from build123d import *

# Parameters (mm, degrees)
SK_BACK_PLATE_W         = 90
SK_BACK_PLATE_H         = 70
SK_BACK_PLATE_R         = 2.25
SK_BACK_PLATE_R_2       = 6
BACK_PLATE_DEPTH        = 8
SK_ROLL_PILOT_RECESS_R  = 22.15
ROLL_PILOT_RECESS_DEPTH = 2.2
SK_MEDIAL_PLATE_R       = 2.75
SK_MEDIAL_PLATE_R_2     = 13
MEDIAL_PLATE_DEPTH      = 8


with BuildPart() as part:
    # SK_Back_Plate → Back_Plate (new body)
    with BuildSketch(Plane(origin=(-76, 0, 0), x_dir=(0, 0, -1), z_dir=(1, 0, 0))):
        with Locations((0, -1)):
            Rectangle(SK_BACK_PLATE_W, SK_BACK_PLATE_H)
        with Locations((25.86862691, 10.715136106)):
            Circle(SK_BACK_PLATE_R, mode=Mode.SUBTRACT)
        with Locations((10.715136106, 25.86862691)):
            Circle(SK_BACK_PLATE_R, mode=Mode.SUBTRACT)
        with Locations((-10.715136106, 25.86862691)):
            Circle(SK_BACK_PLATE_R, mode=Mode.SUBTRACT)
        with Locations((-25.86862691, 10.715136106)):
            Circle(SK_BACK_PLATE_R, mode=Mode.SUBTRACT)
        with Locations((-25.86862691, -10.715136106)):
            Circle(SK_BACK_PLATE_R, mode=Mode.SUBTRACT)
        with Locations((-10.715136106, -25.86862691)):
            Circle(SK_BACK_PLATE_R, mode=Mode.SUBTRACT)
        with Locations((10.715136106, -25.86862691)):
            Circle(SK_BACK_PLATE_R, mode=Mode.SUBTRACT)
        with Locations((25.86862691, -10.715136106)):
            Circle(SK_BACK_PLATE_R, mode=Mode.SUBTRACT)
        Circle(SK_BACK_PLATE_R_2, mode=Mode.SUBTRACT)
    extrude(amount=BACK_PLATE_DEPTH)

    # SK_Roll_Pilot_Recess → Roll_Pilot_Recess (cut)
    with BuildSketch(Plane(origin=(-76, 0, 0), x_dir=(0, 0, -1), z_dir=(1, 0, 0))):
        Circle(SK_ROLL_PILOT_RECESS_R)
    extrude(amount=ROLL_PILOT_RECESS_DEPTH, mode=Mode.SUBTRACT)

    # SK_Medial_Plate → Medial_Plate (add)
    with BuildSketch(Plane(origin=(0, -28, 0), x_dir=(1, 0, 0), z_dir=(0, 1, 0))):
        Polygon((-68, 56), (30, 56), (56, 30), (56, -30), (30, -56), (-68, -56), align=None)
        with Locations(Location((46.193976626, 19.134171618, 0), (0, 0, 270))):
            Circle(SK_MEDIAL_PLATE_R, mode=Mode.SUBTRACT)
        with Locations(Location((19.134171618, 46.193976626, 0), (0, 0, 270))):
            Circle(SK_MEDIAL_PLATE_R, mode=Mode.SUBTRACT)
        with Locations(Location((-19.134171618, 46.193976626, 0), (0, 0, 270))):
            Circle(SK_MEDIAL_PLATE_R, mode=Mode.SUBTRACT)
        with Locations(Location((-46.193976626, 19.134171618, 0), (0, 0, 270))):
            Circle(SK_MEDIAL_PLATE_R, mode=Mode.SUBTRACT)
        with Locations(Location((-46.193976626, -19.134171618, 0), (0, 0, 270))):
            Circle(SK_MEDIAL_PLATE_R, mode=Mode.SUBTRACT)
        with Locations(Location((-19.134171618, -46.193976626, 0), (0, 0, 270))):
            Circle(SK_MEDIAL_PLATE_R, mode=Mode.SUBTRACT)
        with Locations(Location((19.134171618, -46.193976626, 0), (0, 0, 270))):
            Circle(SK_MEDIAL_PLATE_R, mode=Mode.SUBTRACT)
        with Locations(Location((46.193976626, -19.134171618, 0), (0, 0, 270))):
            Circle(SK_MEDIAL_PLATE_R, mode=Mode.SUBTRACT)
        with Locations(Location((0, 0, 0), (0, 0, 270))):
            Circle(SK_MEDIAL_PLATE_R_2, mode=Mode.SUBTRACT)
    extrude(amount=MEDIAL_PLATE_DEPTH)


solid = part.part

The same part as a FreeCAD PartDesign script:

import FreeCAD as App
import Part
import Sketcher
Q = App.Units.Quantity


def add_polygon(sketch, points):
    """Adds a closed chain of lines whose ends are joined by coincident constraints."""
    first, n = sketch.GeometryCount, len(points)
    for a, b in zip(points, points[1:] + points[:1]):
        sketch.addGeometry(Part.LineSegment(App.Vector(*a, 0), App.Vector(*b, 0)), False)
    for i in range(n):
        sketch.addConstraint(Sketcher.Constraint("Coincident", first + i, 2, first + (i + 1) % n, 1))

doc = App.newDocument("Part")
params = doc.addObject("Spreadsheet::Sheet", "Params")
for row, (alias, value) in enumerate([
    ("sketch1_diameter", "12 mm"),
    ("sketch1_diameter2", "4.5 mm"),
    ("sketch1_width", "70 mm"),
    ("sketch1_height", "90 mm"),
    ("pad1_length", "8 mm"),
    ("sketch2_diameter", "44.3 mm"),
    ("pocket1_length", "2.2 mm"),
    ("sketch3_diameter", "26 mm"),
    ("sketch3_diameter2", "5.5 mm"),
    ("sketch3_width", "98 mm"),
    ("sketch3_height", "112 mm"),
    ("sketch3_height2", "60 mm"),
    ("pad2_length", "8 mm"),
], start=1):
    params.set(f"A{row}", alias)
    params.set(f"B{row}", "=" + value)
    params.setAlias(f"B{row}", alias)

body = doc.addObject("PartDesign::Body", "Body")

# Sketch on YZ plane
sketch1 = body.newObject("Sketcher::SketchObject", "Sketch")
sketch1.AttachmentSupport = (doc.getObject("YZ_Plane"), [""])
sketch1.MapMode = "FlatFace"
sketch1.AttachmentOffset = App.Placement(App.Vector(0, 0, -76), App.Rotation())
add_polygon(sketch1, [(34, 45), (-36, 45), (-36, -45), (34, -45)])  # lines 0-3
sketch1.addGeometry(Part.Circle(App.Vector(-25.868627, 10.715136, 0), App.Vector(0, 0, 1), 2.25), False)  # 4
sketch1.addGeometry(Part.Circle(App.Vector(-10.715136, 25.868627, 0), App.Vector(0, 0, 1), 2.25), False)  # 5
sketch1.addGeometry(Part.Circle(App.Vector(-25.868627, -10.715136, 0), App.Vector(0, 0, 1), 2.25), False)  # 6
sketch1.addGeometry(Part.Circle(App.Vector(-10.715136, -25.868627, 0), App.Vector(0, 0, 1), 2.25), False)  # 7
sketch1.addGeometry(Part.Circle(App.Vector(10.715136, 25.868627, 0), App.Vector(0, 0, 1), 2.25), False)  # 8
sketch1.addGeometry(Part.Circle(App.Vector(25.868627, 10.715136, 0), App.Vector(0, 0, 1), 2.25), False)  # 9
sketch1.addGeometry(Part.Circle(App.Vector(0, 0, 0), App.Vector(0, 0, 1), 6), False)  # 10
sketch1.addGeometry(Part.Circle(App.Vector(10.715136, -25.868627, 0), App.Vector(0, 0, 1), 2.25), False)  # 11
sketch1.addGeometry(Part.Circle(App.Vector(25.868627, -10.715136, 0), App.Vector(0, 0, 1), 2.25), False)  # 12
sketch1.addConstraint(Sketcher.Constraint("Horizontal", 0))
sketch1.addConstraint(Sketcher.Constraint("Vertical", 1))
sketch1.addConstraint(Sketcher.Constraint("Horizontal", 2))
sketch1.addConstraint(Sketcher.Constraint("Vertical", 3))
sketch1.addConstraint(Sketcher.Constraint("Coincident", 10, 3, -1, 1))
sketch1.addConstraint(Sketcher.Constraint("Equal", 4, 5))
sketch1.addConstraint(Sketcher.Constraint("Equal", 5, 6))
sketch1.addConstraint(Sketcher.Constraint("Equal", 6, 7))
sketch1.addConstraint(Sketcher.Constraint("Equal", 7, 8))
sketch1.addConstraint(Sketcher.Constraint("Equal", 8, 9))
sketch1.addConstraint(Sketcher.Constraint("Equal", 9, 11))
sketch1.addConstraint(Sketcher.Constraint("Equal", 11, 12))
sketch1.addConstraint(Sketcher.Constraint("Symmetric", 7, 3, 8, 3, -1, 1))
sketch1.addConstraint(Sketcher.Constraint("Symmetric", 6, 3, 9, 3, -1, 1))
sketch1.addConstraint(Sketcher.Constraint("Symmetric", 5, 3, 11, 3, -1, 1))
sketch1.addConstraint(Sketcher.Constraint("Symmetric", 4, 3, 12, 3, -1, 1))
sketch1.addConstraint(Sketcher.Constraint("Symmetric", 5, 3, 8, 3, -2))
sketch1.addConstraint(Sketcher.Constraint("Symmetric", 4, 3, 9, 3, -2))
sketch1.addConstraint(Sketcher.Constraint("Diameter", 10, Q("12 mm")))
sketch1.addConstraint(Sketcher.Constraint("Diameter", 4, Q("4.5 mm")))
sketch1.addConstraint(Sketcher.Constraint("DistanceX", 0, 2, 0, 1, Q("70 mm")))
sketch1.addConstraint(Sketcher.Constraint("DistanceY", 1, 2, 1, 1, Q("90 mm")))
sketch1.addConstraint(Sketcher.Constraint("DistanceX", 0, 2, -1, 1, Q("36 mm")))
sketch1.addConstraint(Sketcher.Constraint("DistanceY", -1, 1, 0, 2, Q("45 mm")))
sketch1.addConstraint(Sketcher.Constraint("DistanceX", 4, 3, 5, 3, Q("15.153491 mm")))
sketch1.addConstraint(Sketcher.Constraint("DistanceY", 4, 3, 5, 3, Q("15.153491 mm")))
sketch1.addConstraint(Sketcher.Constraint("DistanceX", 4, 3, -1, 1, Q("25.868627 mm")))
sketch1.addConstraint(Sketcher.Constraint("DistanceY", -1, 1, 4, 3, Q("10.715136 mm")))
sketch1.setExpression("Constraints[22]", "Params.sketch1_diameter")
sketch1.setExpression("Constraints[23]", "Params.sketch1_diameter2")
sketch1.setExpression("Constraints[24]", "Params.sketch1_width")
sketch1.setExpression("Constraints[25]", "Params.sketch1_height")
pad1 = body.newObject("PartDesign::Pad", "Pad")
pad1.Profile = sketch1
pad1.setExpression("Length", "Params.pad1_length")

# Sketch on YZ plane
sketch2 = body.newObject("Sketcher::SketchObject", "Sketch001")
sketch2.AttachmentSupport = (doc.getObject("YZ_Plane"), [""])
sketch2.MapMode = "FlatFace"
sketch2.AttachmentOffset = App.Placement(App.Vector(0, 0, -76), App.Rotation())
sketch2.addGeometry(Part.Circle(App.Vector(0, 0, 0), App.Vector(0, 0, 1), 22.15), False)
sketch2.addConstraint(Sketcher.Constraint("Coincident", 0, 3, -1, 1))
sketch2.addConstraint(Sketcher.Constraint("Diameter", 0, Q("44.3 mm")))
sketch2.setExpression("Constraints[1]", "Params.sketch2_diameter")
pocket1 = body.newObject("PartDesign::Pocket", "Pocket")
pocket1.Profile = sketch2
pocket1.setExpression("Length", "Params.pocket1_length")
pocket1.Reversed = True

# Sketch on XZ plane
sketch3 = body.newObject("Sketcher::SketchObject", "Sketch002")
sketch3.AttachmentSupport = (doc.getObject("XZ_Plane"), [""])
sketch3.MapMode = "FlatFace"
sketch3.AttachmentOffset = App.Placement(App.Vector(0, 0, 28), App.Rotation())
add_polygon(sketch3, [(30, -56), (-68, -56), (-68, 56), (30, 56), (56, 30), (56, -30)])  # lines 0-5
sketch3.addGeometry(Part.Circle(App.Vector(19.134172, 46.193977, 0), App.Vector(0, 0, 1), 2.75), False)  # 6
sketch3.addGeometry(Part.Circle(App.Vector(46.193977, 19.134172, 0), App.Vector(0, 0, 1), 2.75), False)  # 7
sketch3.addGeometry(Part.Circle(App.Vector(-19.134172, 46.193977, 0), App.Vector(0, 0, 1), 2.75), False)  # 8
sketch3.addGeometry(Part.Circle(App.Vector(-46.193977, 19.134172, 0), App.Vector(0, 0, 1), 2.75), False)  # 9
sketch3.addGeometry(Part.Circle(App.Vector(46.193977, -19.134172, 0), App.Vector(0, 0, 1), 2.75), False)  # 10
sketch3.addGeometry(Part.Circle(App.Vector(0, 0, 0), App.Vector(0, 0, 1), 13), False)  # 11
sketch3.addGeometry(Part.Circle(App.Vector(19.134172, -46.193977, 0), App.Vector(0, 0, 1), 2.75), False)  # 12
sketch3.addGeometry(Part.Circle(App.Vector(-46.193977, -19.134172, 0), App.Vector(0, 0, 1), 2.75), False)  # 13
sketch3.addGeometry(Part.Circle(App.Vector(-19.134172, -46.193977, 0), App.Vector(0, 0, 1), 2.75), False)  # 14
sketch3.addConstraint(Sketcher.Constraint("Horizontal", 0))
sketch3.addConstraint(Sketcher.Constraint("Vertical", 1))
sketch3.addConstraint(Sketcher.Constraint("Horizontal", 2))
sketch3.addConstraint(Sketcher.Constraint("Vertical", 4))
sketch3.addConstraint(Sketcher.Constraint("Coincident", 11, 3, -1, 1))
sketch3.addConstraint(Sketcher.Constraint("Equal", 6, 7))
sketch3.addConstraint(Sketcher.Constraint("Equal", 7, 8))
sketch3.addConstraint(Sketcher.Constraint("Equal", 8, 9))
sketch3.addConstraint(Sketcher.Constraint("Equal", 9, 10))
sketch3.addConstraint(Sketcher.Constraint("Equal", 10, 12))
sketch3.addConstraint(Sketcher.Constraint("Equal", 12, 13))
sketch3.addConstraint(Sketcher.Constraint("Equal", 13, 14))
sketch3.addConstraint(Sketcher.Constraint("Symmetric", 9, 3, 10, 3, -1, 1))
sketch3.addConstraint(Sketcher.Constraint("Symmetric", 8, 3, 12, 3, -1, 1))
sketch3.addConstraint(Sketcher.Constraint("Symmetric", 7, 3, 13, 3, -1, 1))
sketch3.addConstraint(Sketcher.Constraint("Symmetric", 6, 3, 14, 3, -1, 1))
sketch3.addConstraint(Sketcher.Constraint("Symmetric", 6, 3, 8, 3, -2))
sketch3.addConstraint(Sketcher.Constraint("Symmetric", 7, 3, 9, 3, -2))
sketch3.addConstraint(Sketcher.Constraint("Symmetric", 2, 2, 5, 2, -1))
sketch3.addConstraint(Sketcher.Constraint("Perpendicular", 3, 5))
sketch3.addConstraint(Sketcher.Constraint("Equal", 3, 5))
sketch3.addConstraint(Sketcher.Constraint("Diameter", 11, Q("26 mm")))
sketch3.addConstraint(Sketcher.Constraint("Diameter", 6, Q("5.5 mm")))
sketch3.addConstraint(Sketcher.Constraint("DistanceX", 0, 2, 0, 1, Q("98 mm")))
sketch3.addConstraint(Sketcher.Constraint("DistanceY", 1, 1, 1, 2, Q("112 mm")))
sketch3.addConstraint(Sketcher.Constraint("DistanceY", 4, 2, 4, 1, Q("60 mm")))
sketch3.addConstraint(Sketcher.Constraint("DistanceX", 0, 2, -1, 1, Q("68 mm")))
sketch3.addConstraint(Sketcher.Constraint("DistanceX", -1, 1, 6, 3, Q("19.134172 mm")))
sketch3.addConstraint(Sketcher.Constraint("DistanceY", -1, 1, 7, 3, Q("19.134172 mm")))
sketch3.addConstraint(Sketcher.Constraint("DistanceX", 8, 3, 7, 3, Q("65.328148 mm")))
sketch3.addConstraint(Sketcher.Constraint("DistanceY", 10, 3, 6, 3, Q("65.328148 mm")))
sketch3.setExpression("Constraints[27]", "Params.sketch3_diameter")
sketch3.setExpression("Constraints[28]", "Params.sketch3_diameter2")
sketch3.setExpression("Constraints[29]", "Params.sketch3_width")
sketch3.setExpression("Constraints[30]", "Params.sketch3_height")
sketch3.setExpression("Constraints[31]", "Params.sketch3_height2")
pad2 = body.newObject("PartDesign::Pad", "Pad001")
pad2.Profile = sketch3
pad2.setExpression("Length", "Params.pad2_length")
pad2.Reversed = True

doc.recompute()
